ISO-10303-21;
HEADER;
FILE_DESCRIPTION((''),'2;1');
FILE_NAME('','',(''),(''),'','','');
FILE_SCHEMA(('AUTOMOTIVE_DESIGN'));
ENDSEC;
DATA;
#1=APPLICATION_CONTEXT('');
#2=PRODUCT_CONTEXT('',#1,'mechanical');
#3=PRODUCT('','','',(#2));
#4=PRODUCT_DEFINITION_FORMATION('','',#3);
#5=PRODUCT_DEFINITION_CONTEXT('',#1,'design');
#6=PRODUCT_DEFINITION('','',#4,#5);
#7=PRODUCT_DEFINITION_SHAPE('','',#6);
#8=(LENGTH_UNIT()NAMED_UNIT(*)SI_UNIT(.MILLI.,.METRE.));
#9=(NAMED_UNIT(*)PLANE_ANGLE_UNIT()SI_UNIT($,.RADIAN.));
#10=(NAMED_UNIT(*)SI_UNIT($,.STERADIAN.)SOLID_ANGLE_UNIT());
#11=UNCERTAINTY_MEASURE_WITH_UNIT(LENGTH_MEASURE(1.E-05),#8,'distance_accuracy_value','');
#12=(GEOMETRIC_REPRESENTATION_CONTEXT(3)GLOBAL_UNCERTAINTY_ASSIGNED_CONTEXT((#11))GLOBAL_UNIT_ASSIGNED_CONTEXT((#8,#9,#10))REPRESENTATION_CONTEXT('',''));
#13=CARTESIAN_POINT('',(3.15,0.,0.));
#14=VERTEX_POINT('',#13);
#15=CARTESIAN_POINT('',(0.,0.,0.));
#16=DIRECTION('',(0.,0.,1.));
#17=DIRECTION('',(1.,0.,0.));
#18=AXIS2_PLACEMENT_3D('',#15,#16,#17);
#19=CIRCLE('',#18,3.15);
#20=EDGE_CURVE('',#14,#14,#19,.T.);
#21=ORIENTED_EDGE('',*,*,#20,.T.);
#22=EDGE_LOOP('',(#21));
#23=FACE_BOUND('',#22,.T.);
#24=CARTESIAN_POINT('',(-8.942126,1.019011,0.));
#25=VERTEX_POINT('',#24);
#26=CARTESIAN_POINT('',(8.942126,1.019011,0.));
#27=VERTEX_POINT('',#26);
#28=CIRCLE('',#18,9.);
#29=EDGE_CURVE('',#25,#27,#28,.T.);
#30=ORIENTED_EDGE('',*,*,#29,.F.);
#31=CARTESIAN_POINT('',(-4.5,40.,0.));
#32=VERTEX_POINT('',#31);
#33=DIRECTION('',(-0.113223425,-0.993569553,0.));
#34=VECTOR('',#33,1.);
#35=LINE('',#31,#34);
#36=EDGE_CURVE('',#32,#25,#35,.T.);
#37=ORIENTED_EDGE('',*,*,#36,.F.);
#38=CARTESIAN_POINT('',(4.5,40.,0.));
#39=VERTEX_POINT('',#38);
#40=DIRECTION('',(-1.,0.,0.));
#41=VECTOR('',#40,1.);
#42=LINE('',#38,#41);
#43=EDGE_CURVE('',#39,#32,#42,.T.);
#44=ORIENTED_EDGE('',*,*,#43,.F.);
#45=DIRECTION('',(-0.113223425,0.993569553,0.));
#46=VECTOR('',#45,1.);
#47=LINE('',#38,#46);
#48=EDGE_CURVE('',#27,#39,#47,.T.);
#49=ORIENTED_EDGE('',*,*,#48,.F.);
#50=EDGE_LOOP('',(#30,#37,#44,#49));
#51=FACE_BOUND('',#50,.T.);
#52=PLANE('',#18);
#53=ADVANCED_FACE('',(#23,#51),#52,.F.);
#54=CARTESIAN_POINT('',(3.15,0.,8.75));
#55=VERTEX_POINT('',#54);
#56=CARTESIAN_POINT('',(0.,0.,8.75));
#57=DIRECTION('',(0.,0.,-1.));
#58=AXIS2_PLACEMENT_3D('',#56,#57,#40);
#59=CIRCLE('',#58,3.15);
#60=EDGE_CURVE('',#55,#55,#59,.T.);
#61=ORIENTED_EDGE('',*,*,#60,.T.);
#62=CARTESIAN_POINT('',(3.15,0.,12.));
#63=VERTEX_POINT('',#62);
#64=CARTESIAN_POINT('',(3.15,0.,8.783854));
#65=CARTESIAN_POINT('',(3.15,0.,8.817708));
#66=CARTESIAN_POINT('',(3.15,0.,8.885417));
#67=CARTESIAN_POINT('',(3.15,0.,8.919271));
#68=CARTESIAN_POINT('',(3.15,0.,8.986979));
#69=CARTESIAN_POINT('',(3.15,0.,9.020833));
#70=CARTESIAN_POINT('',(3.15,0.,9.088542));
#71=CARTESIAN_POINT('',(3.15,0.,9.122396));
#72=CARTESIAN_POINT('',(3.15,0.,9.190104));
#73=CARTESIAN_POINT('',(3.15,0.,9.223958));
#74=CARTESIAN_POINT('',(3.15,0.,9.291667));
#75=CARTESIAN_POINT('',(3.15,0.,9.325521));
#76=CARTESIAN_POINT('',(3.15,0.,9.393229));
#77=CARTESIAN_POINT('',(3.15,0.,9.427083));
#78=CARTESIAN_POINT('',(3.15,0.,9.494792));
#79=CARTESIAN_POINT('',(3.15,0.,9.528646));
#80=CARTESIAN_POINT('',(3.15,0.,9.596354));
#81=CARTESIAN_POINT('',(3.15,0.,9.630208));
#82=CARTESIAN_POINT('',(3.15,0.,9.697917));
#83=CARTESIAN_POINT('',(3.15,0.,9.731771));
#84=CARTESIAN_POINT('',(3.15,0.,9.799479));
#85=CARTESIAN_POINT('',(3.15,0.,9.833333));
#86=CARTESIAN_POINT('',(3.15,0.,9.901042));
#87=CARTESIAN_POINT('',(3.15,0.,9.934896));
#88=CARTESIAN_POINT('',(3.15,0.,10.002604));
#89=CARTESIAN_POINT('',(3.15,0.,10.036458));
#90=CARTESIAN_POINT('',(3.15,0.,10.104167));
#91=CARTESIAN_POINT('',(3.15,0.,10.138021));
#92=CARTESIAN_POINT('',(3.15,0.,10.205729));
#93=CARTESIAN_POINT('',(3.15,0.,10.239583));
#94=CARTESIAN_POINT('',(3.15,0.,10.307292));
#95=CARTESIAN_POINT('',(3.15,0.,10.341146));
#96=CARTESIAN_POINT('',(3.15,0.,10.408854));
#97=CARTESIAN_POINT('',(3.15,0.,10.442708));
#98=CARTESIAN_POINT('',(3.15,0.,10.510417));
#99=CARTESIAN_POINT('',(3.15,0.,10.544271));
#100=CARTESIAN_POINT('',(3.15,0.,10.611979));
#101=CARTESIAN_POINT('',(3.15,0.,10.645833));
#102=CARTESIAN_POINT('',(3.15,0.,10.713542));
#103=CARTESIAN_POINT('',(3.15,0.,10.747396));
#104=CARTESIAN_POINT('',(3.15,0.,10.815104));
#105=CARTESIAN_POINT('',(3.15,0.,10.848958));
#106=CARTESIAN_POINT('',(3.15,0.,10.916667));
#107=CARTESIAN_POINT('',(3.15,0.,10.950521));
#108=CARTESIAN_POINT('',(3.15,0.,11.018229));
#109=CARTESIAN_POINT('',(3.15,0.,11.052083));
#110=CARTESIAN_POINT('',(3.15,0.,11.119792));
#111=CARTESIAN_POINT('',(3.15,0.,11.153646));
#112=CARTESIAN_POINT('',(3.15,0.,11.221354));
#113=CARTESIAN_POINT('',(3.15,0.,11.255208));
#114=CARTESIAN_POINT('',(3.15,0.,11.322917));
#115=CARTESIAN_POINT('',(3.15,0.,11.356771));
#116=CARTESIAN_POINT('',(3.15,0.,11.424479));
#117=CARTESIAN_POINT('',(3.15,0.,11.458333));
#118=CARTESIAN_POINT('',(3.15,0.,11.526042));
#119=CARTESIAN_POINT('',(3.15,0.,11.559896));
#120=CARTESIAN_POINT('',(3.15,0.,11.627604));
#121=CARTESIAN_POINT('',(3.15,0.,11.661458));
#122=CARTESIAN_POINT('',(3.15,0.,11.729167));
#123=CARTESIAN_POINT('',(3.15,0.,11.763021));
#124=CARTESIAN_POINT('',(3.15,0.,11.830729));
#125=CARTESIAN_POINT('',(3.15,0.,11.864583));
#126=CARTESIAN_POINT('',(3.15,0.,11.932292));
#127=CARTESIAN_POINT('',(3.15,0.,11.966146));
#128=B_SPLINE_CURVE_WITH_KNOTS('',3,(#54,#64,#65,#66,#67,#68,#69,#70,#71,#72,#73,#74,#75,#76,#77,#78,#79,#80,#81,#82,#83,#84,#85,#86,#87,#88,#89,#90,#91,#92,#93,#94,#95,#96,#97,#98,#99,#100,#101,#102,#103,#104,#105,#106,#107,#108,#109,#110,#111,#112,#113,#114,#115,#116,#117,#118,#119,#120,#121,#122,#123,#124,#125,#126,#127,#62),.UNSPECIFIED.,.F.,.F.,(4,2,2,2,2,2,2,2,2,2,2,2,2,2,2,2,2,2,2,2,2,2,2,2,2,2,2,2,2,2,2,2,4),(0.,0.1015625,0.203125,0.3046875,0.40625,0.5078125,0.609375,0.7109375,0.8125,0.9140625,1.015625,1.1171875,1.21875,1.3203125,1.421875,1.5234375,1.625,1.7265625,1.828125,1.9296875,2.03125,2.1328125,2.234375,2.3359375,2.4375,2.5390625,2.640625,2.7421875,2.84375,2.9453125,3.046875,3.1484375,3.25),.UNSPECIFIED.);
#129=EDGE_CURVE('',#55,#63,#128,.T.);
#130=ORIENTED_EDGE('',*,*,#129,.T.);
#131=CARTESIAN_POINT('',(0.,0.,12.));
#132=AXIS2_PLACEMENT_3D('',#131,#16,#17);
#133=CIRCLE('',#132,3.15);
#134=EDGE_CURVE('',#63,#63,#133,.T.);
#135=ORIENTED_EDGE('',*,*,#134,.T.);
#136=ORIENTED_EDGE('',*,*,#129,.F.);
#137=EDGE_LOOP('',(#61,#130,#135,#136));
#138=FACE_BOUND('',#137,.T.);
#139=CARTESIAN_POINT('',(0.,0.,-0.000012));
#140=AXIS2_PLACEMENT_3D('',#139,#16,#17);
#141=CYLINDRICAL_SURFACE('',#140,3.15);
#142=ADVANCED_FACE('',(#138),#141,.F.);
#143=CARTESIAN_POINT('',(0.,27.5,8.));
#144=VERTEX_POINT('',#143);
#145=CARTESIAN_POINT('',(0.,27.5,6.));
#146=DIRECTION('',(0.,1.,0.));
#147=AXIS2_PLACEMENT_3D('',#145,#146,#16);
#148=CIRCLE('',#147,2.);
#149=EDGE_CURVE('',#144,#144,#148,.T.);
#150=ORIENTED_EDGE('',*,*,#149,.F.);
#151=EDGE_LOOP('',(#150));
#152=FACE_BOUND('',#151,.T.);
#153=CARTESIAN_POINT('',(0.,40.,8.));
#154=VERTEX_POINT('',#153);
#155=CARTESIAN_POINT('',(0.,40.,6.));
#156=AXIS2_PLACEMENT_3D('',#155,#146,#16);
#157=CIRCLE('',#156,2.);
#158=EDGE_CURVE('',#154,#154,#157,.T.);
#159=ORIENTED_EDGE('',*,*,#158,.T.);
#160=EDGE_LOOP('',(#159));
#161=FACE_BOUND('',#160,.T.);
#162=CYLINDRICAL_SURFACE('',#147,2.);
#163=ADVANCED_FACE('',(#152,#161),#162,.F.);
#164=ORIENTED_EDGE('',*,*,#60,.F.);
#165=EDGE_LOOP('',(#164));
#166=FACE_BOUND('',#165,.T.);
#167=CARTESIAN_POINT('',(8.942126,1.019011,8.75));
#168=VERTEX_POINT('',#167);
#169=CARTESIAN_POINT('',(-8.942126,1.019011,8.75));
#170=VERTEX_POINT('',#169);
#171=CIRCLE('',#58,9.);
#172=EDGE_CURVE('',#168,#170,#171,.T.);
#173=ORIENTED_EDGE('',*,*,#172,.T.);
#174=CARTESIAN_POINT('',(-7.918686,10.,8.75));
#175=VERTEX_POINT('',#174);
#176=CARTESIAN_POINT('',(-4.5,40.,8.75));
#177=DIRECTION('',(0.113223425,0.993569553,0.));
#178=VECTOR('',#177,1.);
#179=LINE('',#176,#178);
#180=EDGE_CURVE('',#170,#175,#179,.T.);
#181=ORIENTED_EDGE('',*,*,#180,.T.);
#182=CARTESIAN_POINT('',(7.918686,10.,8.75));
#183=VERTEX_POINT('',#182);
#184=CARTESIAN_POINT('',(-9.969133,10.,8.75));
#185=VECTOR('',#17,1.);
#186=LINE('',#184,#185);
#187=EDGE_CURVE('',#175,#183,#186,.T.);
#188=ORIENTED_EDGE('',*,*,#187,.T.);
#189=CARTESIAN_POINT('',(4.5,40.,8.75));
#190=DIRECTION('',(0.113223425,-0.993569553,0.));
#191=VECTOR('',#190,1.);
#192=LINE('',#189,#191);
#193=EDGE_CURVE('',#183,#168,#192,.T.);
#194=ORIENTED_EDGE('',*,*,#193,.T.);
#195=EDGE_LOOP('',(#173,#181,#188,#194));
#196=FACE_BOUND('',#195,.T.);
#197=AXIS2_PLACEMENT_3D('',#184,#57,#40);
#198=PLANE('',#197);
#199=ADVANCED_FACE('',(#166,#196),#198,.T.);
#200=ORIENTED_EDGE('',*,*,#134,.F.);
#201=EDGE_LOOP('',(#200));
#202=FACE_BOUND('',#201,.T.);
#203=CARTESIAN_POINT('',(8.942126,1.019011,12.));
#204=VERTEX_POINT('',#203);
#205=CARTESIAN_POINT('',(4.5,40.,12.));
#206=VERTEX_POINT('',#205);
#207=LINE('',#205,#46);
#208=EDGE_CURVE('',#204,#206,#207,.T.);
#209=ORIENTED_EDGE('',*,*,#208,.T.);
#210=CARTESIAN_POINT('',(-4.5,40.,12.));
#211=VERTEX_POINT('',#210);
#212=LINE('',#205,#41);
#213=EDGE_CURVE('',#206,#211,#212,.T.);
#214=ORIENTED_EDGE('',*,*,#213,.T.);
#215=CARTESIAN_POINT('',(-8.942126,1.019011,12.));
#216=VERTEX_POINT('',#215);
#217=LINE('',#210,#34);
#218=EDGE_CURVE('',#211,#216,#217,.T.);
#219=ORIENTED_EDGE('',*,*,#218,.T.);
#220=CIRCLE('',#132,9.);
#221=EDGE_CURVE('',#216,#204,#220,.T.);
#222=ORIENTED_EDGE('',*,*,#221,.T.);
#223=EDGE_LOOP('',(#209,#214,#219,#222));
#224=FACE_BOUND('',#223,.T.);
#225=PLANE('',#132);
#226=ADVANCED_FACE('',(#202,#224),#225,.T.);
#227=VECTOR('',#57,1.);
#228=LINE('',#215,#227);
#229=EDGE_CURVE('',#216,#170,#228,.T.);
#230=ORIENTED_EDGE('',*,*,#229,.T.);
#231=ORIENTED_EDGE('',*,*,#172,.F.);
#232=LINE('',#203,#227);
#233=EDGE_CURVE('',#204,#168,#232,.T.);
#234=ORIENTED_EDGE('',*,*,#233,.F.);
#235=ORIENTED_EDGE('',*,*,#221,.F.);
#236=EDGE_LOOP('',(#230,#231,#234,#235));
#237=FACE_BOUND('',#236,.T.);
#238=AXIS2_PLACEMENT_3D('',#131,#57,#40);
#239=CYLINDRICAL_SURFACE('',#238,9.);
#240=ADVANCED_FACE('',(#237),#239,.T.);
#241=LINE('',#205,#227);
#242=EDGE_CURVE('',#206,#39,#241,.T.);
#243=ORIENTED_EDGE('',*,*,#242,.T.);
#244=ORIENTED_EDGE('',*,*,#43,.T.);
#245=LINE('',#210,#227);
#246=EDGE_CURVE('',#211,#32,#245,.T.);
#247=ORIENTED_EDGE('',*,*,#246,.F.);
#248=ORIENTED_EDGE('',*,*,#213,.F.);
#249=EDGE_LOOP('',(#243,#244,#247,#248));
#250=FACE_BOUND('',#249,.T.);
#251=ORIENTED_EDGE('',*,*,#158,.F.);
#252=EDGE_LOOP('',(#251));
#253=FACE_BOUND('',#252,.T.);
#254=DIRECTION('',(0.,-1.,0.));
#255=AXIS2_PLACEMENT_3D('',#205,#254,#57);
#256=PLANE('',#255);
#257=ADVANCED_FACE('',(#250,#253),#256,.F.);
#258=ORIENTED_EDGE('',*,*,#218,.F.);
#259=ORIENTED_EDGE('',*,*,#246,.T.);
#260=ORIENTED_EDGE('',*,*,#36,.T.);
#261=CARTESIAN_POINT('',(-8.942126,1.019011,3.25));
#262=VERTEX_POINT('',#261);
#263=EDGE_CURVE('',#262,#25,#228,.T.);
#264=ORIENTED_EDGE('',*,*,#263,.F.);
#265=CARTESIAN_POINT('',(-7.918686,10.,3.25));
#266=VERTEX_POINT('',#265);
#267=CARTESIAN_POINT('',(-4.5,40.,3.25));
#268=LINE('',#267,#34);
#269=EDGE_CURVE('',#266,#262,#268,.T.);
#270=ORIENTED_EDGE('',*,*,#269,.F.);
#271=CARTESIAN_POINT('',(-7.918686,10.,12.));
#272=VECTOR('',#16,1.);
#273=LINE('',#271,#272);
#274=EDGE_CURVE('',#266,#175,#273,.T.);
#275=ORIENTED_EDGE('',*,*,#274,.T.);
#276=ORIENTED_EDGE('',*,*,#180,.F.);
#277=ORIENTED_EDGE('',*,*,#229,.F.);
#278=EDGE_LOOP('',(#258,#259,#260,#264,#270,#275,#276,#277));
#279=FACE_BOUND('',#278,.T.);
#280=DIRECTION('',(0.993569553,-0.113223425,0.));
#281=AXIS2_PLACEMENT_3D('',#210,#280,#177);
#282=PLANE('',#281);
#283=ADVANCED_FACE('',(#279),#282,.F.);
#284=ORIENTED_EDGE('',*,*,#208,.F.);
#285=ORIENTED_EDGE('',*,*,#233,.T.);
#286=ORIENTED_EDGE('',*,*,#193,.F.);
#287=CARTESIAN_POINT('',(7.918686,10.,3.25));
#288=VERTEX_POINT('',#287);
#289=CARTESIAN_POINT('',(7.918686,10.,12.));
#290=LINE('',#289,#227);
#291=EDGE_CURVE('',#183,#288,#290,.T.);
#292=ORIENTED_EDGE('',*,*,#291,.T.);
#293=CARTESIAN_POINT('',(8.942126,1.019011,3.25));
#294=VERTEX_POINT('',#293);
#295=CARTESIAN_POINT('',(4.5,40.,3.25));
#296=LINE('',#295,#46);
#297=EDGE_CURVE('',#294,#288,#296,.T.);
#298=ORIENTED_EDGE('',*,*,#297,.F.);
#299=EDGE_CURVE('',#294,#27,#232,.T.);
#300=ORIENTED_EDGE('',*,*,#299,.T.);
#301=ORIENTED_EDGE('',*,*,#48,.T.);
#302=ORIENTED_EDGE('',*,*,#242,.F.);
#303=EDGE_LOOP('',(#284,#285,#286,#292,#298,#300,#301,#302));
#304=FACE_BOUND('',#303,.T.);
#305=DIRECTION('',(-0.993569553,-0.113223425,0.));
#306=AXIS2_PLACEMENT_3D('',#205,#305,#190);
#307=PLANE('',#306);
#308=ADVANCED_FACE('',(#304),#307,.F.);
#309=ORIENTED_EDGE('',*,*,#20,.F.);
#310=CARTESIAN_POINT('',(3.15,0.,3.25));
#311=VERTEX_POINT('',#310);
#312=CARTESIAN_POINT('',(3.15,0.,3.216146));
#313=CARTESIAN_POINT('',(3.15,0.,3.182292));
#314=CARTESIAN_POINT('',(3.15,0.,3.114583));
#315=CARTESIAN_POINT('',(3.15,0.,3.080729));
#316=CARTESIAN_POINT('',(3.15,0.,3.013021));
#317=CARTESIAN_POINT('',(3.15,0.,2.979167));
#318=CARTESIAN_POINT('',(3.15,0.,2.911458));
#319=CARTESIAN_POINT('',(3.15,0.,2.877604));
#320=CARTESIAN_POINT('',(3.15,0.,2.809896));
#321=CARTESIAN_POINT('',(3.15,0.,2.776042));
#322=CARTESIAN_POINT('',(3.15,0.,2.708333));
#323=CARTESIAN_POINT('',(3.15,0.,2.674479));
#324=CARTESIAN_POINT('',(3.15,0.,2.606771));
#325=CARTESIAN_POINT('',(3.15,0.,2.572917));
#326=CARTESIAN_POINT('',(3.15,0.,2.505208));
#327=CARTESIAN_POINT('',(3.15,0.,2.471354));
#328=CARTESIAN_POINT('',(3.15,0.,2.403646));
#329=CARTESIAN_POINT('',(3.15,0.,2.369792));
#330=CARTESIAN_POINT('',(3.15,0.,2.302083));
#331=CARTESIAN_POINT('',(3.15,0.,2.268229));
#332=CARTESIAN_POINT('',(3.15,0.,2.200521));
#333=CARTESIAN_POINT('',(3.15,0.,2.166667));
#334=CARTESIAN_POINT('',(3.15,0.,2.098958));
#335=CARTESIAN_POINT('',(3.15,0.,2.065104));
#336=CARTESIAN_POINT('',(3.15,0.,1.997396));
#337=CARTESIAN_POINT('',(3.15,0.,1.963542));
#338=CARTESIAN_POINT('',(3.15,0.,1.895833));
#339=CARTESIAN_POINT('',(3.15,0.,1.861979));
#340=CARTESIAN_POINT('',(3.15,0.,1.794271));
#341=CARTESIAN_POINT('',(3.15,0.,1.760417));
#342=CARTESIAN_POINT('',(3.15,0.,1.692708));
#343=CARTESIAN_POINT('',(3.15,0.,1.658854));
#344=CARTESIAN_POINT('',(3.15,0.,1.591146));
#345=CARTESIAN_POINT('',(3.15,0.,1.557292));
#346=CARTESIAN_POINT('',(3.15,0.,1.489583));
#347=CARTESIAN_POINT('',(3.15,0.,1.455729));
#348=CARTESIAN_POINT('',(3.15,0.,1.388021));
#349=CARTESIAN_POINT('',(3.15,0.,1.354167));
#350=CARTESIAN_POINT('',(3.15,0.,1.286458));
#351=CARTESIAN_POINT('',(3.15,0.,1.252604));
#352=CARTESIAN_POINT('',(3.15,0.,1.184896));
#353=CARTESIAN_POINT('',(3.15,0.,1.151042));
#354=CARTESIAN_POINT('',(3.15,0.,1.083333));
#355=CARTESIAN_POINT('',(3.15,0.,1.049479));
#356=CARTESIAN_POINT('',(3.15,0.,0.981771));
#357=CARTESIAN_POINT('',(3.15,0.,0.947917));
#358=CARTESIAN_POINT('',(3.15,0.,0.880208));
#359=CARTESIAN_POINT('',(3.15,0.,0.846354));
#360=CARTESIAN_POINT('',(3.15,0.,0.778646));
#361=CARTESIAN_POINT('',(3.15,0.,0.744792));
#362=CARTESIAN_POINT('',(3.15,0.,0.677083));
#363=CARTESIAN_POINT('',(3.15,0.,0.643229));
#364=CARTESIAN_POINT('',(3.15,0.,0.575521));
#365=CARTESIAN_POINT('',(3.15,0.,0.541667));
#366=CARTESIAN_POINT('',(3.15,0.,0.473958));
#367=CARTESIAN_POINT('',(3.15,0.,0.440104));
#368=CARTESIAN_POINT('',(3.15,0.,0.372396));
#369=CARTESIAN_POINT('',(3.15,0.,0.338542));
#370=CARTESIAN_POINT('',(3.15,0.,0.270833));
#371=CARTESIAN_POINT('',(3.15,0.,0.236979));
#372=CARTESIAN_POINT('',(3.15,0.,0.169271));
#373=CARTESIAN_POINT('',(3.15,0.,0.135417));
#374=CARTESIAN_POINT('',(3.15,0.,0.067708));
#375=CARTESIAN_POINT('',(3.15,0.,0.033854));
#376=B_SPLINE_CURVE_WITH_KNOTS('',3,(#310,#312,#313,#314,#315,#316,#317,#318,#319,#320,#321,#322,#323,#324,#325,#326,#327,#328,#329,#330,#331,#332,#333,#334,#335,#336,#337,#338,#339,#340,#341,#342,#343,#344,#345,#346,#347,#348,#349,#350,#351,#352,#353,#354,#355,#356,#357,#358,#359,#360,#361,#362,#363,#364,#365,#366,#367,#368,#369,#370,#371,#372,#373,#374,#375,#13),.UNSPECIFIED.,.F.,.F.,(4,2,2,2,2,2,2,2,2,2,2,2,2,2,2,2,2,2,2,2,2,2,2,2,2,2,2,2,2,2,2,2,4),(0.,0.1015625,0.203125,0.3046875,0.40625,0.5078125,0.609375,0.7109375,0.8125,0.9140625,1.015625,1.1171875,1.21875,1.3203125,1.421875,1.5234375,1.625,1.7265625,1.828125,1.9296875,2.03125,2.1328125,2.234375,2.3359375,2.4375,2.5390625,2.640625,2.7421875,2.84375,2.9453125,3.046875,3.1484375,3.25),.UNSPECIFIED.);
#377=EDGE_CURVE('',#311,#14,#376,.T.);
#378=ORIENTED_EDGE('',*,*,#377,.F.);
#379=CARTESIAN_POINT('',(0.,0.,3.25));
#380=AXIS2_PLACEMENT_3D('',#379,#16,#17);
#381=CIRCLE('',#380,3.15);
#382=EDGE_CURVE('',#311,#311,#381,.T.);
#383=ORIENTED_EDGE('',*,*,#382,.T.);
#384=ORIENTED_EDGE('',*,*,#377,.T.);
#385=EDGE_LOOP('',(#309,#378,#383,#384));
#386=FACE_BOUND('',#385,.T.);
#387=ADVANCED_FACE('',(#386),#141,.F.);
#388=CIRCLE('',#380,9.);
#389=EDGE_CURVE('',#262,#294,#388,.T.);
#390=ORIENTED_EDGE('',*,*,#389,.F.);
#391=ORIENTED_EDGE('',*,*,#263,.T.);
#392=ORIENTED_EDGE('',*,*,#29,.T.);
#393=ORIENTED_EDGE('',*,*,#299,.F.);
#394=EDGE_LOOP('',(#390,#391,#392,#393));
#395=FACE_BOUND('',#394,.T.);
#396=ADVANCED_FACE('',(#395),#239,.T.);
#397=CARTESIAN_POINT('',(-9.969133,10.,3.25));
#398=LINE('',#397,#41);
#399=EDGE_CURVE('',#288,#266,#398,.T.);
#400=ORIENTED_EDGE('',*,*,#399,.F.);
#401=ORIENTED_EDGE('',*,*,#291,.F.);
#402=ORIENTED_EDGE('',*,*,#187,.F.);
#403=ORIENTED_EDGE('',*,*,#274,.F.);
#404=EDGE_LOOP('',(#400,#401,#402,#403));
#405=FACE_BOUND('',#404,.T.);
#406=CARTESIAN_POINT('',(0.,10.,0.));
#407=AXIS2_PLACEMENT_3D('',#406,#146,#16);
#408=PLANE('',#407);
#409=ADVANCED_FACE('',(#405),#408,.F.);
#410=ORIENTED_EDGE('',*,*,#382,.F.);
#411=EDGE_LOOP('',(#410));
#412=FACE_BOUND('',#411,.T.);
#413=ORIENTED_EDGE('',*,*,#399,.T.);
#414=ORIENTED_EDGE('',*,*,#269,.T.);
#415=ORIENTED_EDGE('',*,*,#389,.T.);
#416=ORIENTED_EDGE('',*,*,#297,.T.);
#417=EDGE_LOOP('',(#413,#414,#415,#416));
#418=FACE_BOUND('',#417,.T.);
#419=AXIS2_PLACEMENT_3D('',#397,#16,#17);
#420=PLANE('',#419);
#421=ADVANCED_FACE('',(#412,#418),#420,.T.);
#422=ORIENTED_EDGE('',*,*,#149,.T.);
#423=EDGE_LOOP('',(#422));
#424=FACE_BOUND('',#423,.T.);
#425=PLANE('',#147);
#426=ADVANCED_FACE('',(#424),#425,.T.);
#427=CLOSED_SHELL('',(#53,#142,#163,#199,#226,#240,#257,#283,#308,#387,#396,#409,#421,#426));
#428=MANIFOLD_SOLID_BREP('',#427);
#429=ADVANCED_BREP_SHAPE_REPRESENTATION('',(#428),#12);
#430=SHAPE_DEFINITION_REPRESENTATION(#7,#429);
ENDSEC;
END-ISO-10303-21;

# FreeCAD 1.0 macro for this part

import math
import FreeCAD as App
import Part
import Sketcher

V = App.Vector

doc = App.newDocument("Part")
body = doc.addObject("PartDesign::Body", "Body")

# Sketch on XY plane
sketch1 = body.newObject("Sketcher::SketchObject", "Sketch")
sketch1.AttachmentSupport = (doc.getObject("XY_Plane"), [""])
sketch1.MapMode = "FlatFace"
sketch1.addGeometry([
    Part.LineSegment(V(4, 40, 0), V(-4, 40, 0)),
    Part.LineSegment(V(-4, 40, 0), V(-9, 1, 0)),
    Part.ArcOfCircle(Part.Circle(V(0, 0, 0), V(0, 0, 1), 9), math.radians(173), math.radians(367)),
    Part.LineSegment(V(9, 1, 0), V(4, 40, 0)),
], False)
sketch1.addConstraint([
    Sketcher.Constraint("Coincident", 0, 2, 1, 1),
    Sketcher.Constraint("Tangent", 1, 2, 2, 1),
    Sketcher.Constraint("Tangent", 2, 2, 3, 1),
    Sketcher.Constraint("Coincident", 3, 2, 0, 1),
    Sketcher.Constraint("Horizontal", 0),
    Sketcher.Constraint("Coincident", 2, 3, -1, 1),
    Sketcher.Constraint("Horizontal", 1, 2, 2, 2),
    Sketcher.Constraint("Radius", 2, 9.0),
    Sketcher.Constraint("DistanceX", 0, 2, 0, 1, 9.0),
    Sketcher.Constraint("DistanceY", -1, 1, 0, 2, 40.0),
])
pad1 = body.newObject("PartDesign::Pad", "Pad")
pad1.Profile = sketch1
pad1.Length = 12

# Sketch on XZ plane
sketch2 = body.newObject("Sketcher::SketchObject", "Sketch001")
sketch2.AttachmentSupport = (doc.getObject("XZ_Plane"), [""])
sketch2.MapMode = "FlatFace"
sketch2.AttachmentOffset = App.Placement(V(0, 0, -40), App.Rotation())
sketch2.addGeometry(Part.Circle(V(0, 6, 0), V(0, 0, 1), 2), False)
sketch2.addConstraint([
    Sketcher.Constraint("PointOnObject", 0, 3, -2),
    Sketcher.Constraint("Diameter", 0, 4.0),
    Sketcher.Constraint("DistanceY", -1, 1, 0, 3, 6.0),
])
pocket1 = body.newObject("PartDesign::Pocket", "Pocket")
pocket1.Profile = sketch2
pocket1.Length = 12.5
pocket1.Reversed = True

# Sketch on XZ plane
sketch3 = body.newObject("Sketcher::SketchObject", "Sketch002")
sketch3.AttachmentSupport = (doc.getObject("XZ_Plane"), [""])
sketch3.MapMode = "FlatFace"
sketch3.addGeometry([
    Part.LineSegment(V(-10, 3, 0), V(-10, 9, 0)),
    Part.LineSegment(V(-10, 9, 0), V(10, 9, 0)),
    Part.LineSegment(V(10, 9, 0), V(10, 3, 0)),
    Part.LineSegment(V(10, 3, 0), V(-10, 3, 0)),
], False)
sketch3.addConstraint([
    Sketcher.Constraint("Coincident", 0, 2, 1, 1),
    Sketcher.Constraint("Coincident", 1, 2, 2, 1),
    Sketcher.Constraint("Coincident", 2, 2, 3, 1),
    Sketcher.Constraint("Coincident", 3, 2, 0, 1),
    Sketcher.Constraint("Vertical", 0),
    Sketcher.Constraint("Horizontal", 1),
    Sketcher.Constraint("Vertical", 2),
    Sketcher.Constraint("Horizontal", 3),
    Sketcher.Constraint("DistanceY", 0, 1, 0, 2, 5.5),
    Sketcher.Constraint("DistanceY", -1, 1, 0, 2, 8.75),
    Sketcher.Constraint("DistanceX", 1, 1, 1, 2, 19.938267),
    Sketcher.Constraint("DistanceX", 0, 2, -1, 1, 9.969133),
])
pocket2 = body.newObject("PartDesign::Pocket", "Pocket001")
pocket2.Profile = sketch3
pocket2.Type = "TwoLengths"
pocket2.Length = 10
pocket2.Length2 = 16

# Sketch on XY plane
sketch4 = body.newObject("Sketcher::SketchObject", "Sketch003")
sketch4.AttachmentSupport = (doc.getObject("XY_Plane"), [""])
sketch4.MapMode = "FlatFace"
sketch4.addGeometry(Part.Circle(V(0, 0, 0), V(0, 0, 1), 3.1), False)
sketch4.addConstraint([
    Sketcher.Constraint("Coincident", 0, 3, -1, 1),
    Sketcher.Constraint("Diameter", 0, 6.3),
])
pocket3 = body.newObject("PartDesign::Pocket", "Pocket002")
pocket3.Profile = sketch4
pocket3.Type = "ThroughAll"
pocket3.Midplane = True

doc.recompute()
